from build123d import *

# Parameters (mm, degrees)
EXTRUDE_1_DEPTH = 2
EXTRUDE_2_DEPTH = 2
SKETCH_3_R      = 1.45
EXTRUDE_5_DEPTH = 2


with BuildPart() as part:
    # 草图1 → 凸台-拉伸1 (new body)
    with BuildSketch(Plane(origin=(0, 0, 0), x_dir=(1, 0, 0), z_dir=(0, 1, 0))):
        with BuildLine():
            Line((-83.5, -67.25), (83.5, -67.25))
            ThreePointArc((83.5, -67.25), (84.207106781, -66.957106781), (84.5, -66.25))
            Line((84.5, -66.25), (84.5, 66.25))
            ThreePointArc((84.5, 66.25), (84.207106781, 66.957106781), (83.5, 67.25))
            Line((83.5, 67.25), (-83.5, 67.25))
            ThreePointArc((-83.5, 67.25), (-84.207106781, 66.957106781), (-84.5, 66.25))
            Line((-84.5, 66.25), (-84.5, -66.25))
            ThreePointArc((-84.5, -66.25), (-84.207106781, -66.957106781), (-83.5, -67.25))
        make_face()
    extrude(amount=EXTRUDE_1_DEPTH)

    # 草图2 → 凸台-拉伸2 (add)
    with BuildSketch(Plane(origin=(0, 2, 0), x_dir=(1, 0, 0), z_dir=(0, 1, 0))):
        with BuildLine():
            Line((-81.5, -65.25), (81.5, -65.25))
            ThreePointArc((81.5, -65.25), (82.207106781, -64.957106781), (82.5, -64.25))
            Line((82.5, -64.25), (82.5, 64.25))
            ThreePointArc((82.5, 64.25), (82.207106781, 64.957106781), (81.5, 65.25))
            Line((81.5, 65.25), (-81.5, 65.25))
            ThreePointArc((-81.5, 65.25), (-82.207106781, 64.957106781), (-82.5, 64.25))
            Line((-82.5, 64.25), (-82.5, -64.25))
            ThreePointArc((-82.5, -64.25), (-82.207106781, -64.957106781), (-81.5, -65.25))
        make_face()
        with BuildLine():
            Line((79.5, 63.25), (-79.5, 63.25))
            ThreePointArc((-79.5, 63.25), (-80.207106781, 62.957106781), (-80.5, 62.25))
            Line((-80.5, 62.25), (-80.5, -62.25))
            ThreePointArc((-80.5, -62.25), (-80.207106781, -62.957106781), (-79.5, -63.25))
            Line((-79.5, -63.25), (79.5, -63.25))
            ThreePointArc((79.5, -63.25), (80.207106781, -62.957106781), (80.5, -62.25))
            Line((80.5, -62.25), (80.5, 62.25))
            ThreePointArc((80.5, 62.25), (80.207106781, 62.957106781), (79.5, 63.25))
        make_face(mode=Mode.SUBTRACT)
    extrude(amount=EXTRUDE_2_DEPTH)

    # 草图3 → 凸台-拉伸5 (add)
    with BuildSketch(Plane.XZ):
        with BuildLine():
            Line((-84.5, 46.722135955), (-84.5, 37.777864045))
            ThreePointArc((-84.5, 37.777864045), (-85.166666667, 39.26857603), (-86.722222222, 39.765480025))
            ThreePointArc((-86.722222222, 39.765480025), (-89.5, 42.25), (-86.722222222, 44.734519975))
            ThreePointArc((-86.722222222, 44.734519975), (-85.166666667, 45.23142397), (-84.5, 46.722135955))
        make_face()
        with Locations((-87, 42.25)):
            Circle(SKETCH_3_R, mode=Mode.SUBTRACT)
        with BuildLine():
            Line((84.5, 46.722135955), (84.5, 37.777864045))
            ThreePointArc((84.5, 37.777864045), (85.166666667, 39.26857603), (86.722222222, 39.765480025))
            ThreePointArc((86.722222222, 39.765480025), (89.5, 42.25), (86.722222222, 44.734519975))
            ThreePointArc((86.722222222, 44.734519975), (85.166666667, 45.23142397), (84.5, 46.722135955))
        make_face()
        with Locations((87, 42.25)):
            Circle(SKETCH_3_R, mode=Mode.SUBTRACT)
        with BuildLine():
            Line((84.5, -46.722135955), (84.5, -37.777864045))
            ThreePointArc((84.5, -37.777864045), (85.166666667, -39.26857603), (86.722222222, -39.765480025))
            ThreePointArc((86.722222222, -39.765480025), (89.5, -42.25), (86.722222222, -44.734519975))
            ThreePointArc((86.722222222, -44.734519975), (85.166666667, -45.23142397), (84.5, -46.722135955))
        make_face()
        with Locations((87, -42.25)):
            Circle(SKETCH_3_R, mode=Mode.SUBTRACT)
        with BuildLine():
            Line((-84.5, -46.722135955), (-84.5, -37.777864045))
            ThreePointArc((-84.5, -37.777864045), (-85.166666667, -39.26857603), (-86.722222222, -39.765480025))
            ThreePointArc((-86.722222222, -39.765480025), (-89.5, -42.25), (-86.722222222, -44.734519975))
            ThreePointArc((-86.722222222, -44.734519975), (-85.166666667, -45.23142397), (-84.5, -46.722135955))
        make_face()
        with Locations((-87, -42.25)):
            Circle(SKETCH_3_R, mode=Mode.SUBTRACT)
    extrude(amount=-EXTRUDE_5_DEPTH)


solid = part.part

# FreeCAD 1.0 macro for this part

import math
import FreeCAD as App
import Part
import Sketcher

doc = App.newDocument("Part")
body = doc.addObject("PartDesign::Body", "Body")

# Sketch on XZ plane
sketch1 = doc.addObject("Sketcher::SketchObject", "Sketch")
body.addObject(sketch1)
sketch1.AttachmentSupport = (doc.XZ_Plane, [""])
sketch1.MapMode = "FlatFace"
sketch1.addGeometry(Part.LineSegment(App.Vector(-83.5, 67.25, 0), App.Vector(83.5, 67.25, 0)), False)
sketch1.addGeometry(Part.ArcOfCircle(Part.Circle(App.Vector(83.5, 66.25, 0), App.Vector(0, 0, 1), 1), math.radians(0), math.radians(90)), False)
sketch1.addGeometry(Part.LineSegment(App.Vector(84.5, 66.25, 0), App.Vector(84.5, -66.25, 0)), False)
sketch1.addGeometry(Part.ArcOfCircle(Part.Circle(App.Vector(83.5, -66.25, 0), App.Vector(0, 0, 1), 1), math.radians(-90), math.radians(0)), False)
sketch1.addGeometry(Part.LineSegment(App.Vector(83.5, -67.25, 0), App.Vector(-83.5, -67.25, 0)), False)
sketch1.addGeometry(Part.ArcOfCircle(Part.Circle(App.Vector(-83.5, -66.25, 0), App.Vector(0, 0, 1), 1), math.radians(-180), math.radians(-90)), False)
sketch1.addGeometry(Part.LineSegment(App.Vector(-84.5, -66.25, 0), App.Vector(-84.5, 66.25, 0)), False)
sketch1.addGeometry(Part.ArcOfCircle(Part.Circle(App.Vector(-83.5, 66.25, 0), App.Vector(0, 0, 1), 1), math.radians(90), math.radians(180)), False)
sketch1.addConstraint(Sketcher.Constraint("Tangent", 0, 2, 1, 2))
sketch1.addConstraint(Sketcher.Constraint("Tangent", 1, 1, 2, 1))
sketch1.addConstraint(Sketcher.Constraint("Tangent", 2, 2, 3, 2))
sketch1.addConstraint(Sketcher.Constraint("Tangent", 3, 1, 4, 1))
sketch1.addConstraint(Sketcher.Constraint("Tangent", 4, 2, 5, 2))
sketch1.addConstraint(Sketcher.Constraint("Tangent", 5, 1, 6, 1))
sketch1.addConstraint(Sketcher.Constraint("Tangent", 6, 2, 7, 2))
sketch1.addConstraint(Sketcher.Constraint("Tangent", 7, 1, 0, 1))
sketch1.addConstraint(Sketcher.Constraint("Horizontal", 0))
sketch1.addConstraint(Sketcher.Constraint("Vertical", 2))
sketch1.addConstraint(Sketcher.Constraint("Horizontal", 4))
sketch1.addConstraint(Sketcher.Constraint("Vertical", 6))
sketch1.addConstraint(Sketcher.Constraint("Equal", 1, 3))
sketch1.addConstraint(Sketcher.Constraint("Equal", 3, 5))
sketch1.addConstraint(Sketcher.Constraint("Equal", 5, 7))
sketch1.addConstraint(Sketcher.Constraint("Symmetric", 1, 3, 5, 3, -1, 1))
sketch1.addConstraint(Sketcher.Constraint("Radius", 1, 1.0))
sketch1.addConstraint(Sketcher.Constraint("DistanceX", 0, 1, 0, 2, 167.0))
sketch1.addConstraint(Sketcher.Constraint("DistanceY", 2, 2, 2, 1, 132.5))
pad1 = doc.addObject("PartDesign::Pad", "Pad")
body.addObject(pad1)
pad1.Profile = sketch1
pad1.Length = 2
pad1.Reversed = True

# Sketch on XZ plane
sketch2 = doc.addObject("Sketcher::SketchObject", "Sketch001")
body.addObject(sketch2)
sketch2.AttachmentSupport = (doc.XZ_Plane, [""])
sketch2.MapMode = "FlatFace"
sketch2.AttachmentOffset = App.Placement(App.Vector(0, 0, -2), App.Rotation())
sketch2.addGeometry(Part.LineSegment(App.Vector(-81.5, 65.25, 0), App.Vector(81.5, 65.25, 0)), False)
sketch2.addGeometry(Part.ArcOfCircle(Part.Circle(App.Vector(81.5, 64.25, 0), App.Vector(0, 0, 1), 1), math.radians(0), math.radians(90)), False)
sketch2.addGeometry(Part.LineSegment(App.Vector(82.5, 64.25, 0), App.Vector(82.5, -64.25, 0)), False)
sketch2.addGeometry(Part.ArcOfCircle(Part.Circle(App.Vector(81.5, -64.25, 0), App.Vector(0, 0, 1), 1), math.radians(-90), math.radians(0)), False)
sketch2.addGeometry(Part.LineSegment(App.Vector(81.5, -65.25, 0), App.Vector(-81.5, -65.25, 0)), False)
sketch2.addGeometry(Part.ArcOfCircle(Part.Circle(App.Vector(-81.5, -64.25, 0), App.Vector(0, 0, 1), 1), math.radians(-180), math.radians(-90)), False)
sketch2.addGeometry(Part.LineSegment(App.Vector(-82.5, -64.25, 0), App.Vector(-82.5, 64.25, 0)), False)
sketch2.addGeometry(Part.ArcOfCircle(Part.Circle(App.Vector(-81.5, 64.25, 0), App.Vector(0, 0, 1), 1), math.radians(90), math.radians(180)), False)
sketch2.addGeometry(Part.LineSegment(App.Vector(-79.5, -63.25, 0), App.Vector(79.5, -63.25, 0)), False)
sketch2.addGeometry(Part.ArcOfCircle(Part.Circle(App.Vector(79.5, -62.25, 0), App.Vector(0, 0, 1), 1), math.radians(-90), math.radians(0)), False)
sketch2.addGeometry(Part.LineSegment(App.Vector(80.5, -62.25, 0), App.Vector(80.5, 62.25, 0)), False)
sketch2.addGeometry(Part.ArcOfCircle(Part.Circle(App.Vector(79.5, 62.25, 0), App.Vector(0, 0, 1), 1), math.radians(0), math.radians(90)), False)
sketch2.addGeometry(Part.LineSegment(App.Vector(79.5, 63.25, 0), App.Vector(-79.5, 63.25, 0)), False)
sketch2.addGeometry(Part.ArcOfCircle(Part.Circle(App.Vector(-79.5, 62.25, 0), App.Vector(0, 0, 1), 1), math.radians(90), math.radians(180)), False)
sketch2.addGeometry(Part.LineSegment(App.Vector(-80.5, 62.25, 0), App.Vector(-80.5, -62.25, 0)), False)
sketch2.addGeometry(Part.ArcOfCircle(Part.Circle(App.Vector(-79.5, -62.25, 0), App.Vector(0, 0, 1), 1), math.radians(-180), math.radians(-90)), False)
sketch2.addConstraint(Sketcher.Constraint("Tangent", 0, 2, 1, 2))
sketch2.addConstraint(Sketcher.Constraint("Tangent", 1, 1, 2, 1))
sketch2.addConstraint(Sketcher.Constraint("Tangent", 2, 2, 3, 2))
sketch2.addConstraint(Sketcher.Constraint("Tangent", 3, 1, 4, 1))
sketch2.addConstraint(Sketcher.Constraint("Tangent", 4, 2, 5, 2))
sketch2.addConstraint(Sketcher.Constraint("Tangent", 5, 1, 6, 1))
sketch2.addConstraint(Sketcher.Constraint("Tangent", 6, 2, 7, 2))
sketch2.addConstraint(Sketcher.Constraint("Tangent", 7, 1, 0, 1))
sketch2.addConstraint(Sketcher.Constraint("Tangent", 8, 2, 9, 1))
sketch2.addConstraint(Sketcher.Constraint("Tangent", 9, 2, 10, 1))
sketch2.addConstraint(Sketcher.Constraint("Tangent", 10, 2, 11, 1))
sketch2.addConstraint(Sketcher.Constraint("Tangent", 11, 2, 12, 1))
sketch2.addConstraint(Sketcher.Constraint("Tangent", 12, 2, 13, 1))
sketch2.addConstraint(Sketcher.Constraint("Tangent", 13, 2, 14, 1))
sketch2.addConstraint(Sketcher.Constraint("Tangent", 14, 2, 15, 1))
sketch2.addConstraint(Sketcher.Constraint("Tangent", 15, 2, 8, 1))
sketch2.addConstraint(Sketcher.Constraint("Horizontal", 0))
sketch2.addConstraint(Sketcher.Constraint("Vertical", 2))
sketch2.addConstraint(Sketcher.Constraint("Horizontal", 4))
sketch2.addConstraint(Sketcher.Constraint("Vertical", 6))
sketch2.addConstraint(Sketcher.Constraint("Horizontal", 8))
sketch2.addConstraint(Sketcher.Constraint("Vertical", 10))
sketch2.addConstraint(Sketcher.Constraint("Horizontal", 12))
sketch2.addConstraint(Sketcher.Constraint("Vertical", 14))
sketch2.addConstraint(Sketcher.Constraint("Equal", 1, 3))
sketch2.addConstraint(Sketcher.Constraint("Equal", 3, 5))
sketch2.addConstraint(Sketcher.Constraint("Equal", 5, 7))
sketch2.addConstraint(Sketcher.Constraint("Equal", 7, 9))
sketch2.addConstraint(Sketcher.Constraint("Equal", 9, 11))
sketch2.addConstraint(Sketcher.Constraint("Equal", 11, 13))
sketch2.addConstraint(Sketcher.Constraint("Equal", 13, 15))
sketch2.addConstraint(Sketcher.Constraint("Symmetric", 1, 3, 5, 3, -1, 1))
sketch2.addConstraint(Sketcher.Constraint("Symmetric", 9, 3, 13, 3, -1, 1))
sketch2.addConstraint(Sketcher.Constraint("Radius", 1, 1.0))
sketch2.addConstraint(Sketcher.Constraint("DistanceX", 0, 1, 0, 2, 163.0))
sketch2.addConstraint(Sketcher.Constraint("DistanceX", 8, 1, 8, 2, 159.0))
sketch2.addConstraint(Sketcher.Constraint("DistanceY", 2, 2, 2, 1, 128.5))
sketch2.addConstraint(Sketcher.Constraint("DistanceY", 10, 1, 10, 2, 124.5))
pad2 = doc.addObject("PartDesign::Pad", "Pad001")
body.addObject(pad2)
pad2.Profile = sketch2
pad2.Length = 2
pad2.Reversed = True

# Sketch on XZ plane
sketch3 = doc.addObject("Sketcher::SketchObject", "Sketch002")
body.addObject(sketch3)
sketch3.AttachmentSupport = (doc.XZ_Plane, [""])
sketch3.MapMode = "FlatFace"
sketch3.addGeometry(Part.LineSegment(App.Vector(-84.5, 37.777864, 0), App.Vector(-84.5, 46.722136, 0)), False)
sketch3.addGeometry(Part.ArcOfCircle(Part.Circle(App.Vector(-86.5, 46.722136, 0), App.Vector(0, 0, 1), 2), math.radians(-96.37937), math.radians(0)), False)
sketch3.addGeometry(Part.ArcOfCircle(Part.Circle(App.Vector(-87, 42.25, 0), App.Vector(0, 0, 1), 2.5), math.radians(83.62063), math.radians(276.37937)), False)
sketch3.addGeometry(Part.ArcOfCircle(Part.Circle(App.Vector(-86.5, 37.777864, 0), App.Vector(0, 0, 1), 2), math.radians(0), math.radians(96.37937)), False)
sketch3.addGeometry(Part.Circle(App.Vector(-87, 42.25, 0), App.Vector(0, 0, 1), 1.45), False)
sketch3.addGeometry(Part.LineSegment(App.Vector(84.5, 46.722136, 0), App.Vector(84.5, 37.777864, 0)), False)
sketch3.addGeometry(Part.ArcOfCircle(Part.Circle(App.Vector(86.5, 37.777864, 0), App.Vector(0, 0, 1), 2), math.radians(83.62063), math.radians(180)), False)
sketch3.addGeometry(Part.ArcOfCircle(Part.Circle(App.Vector(87, 42.25, 0), App.Vector(0, 0, 1), 2.5), math.radians(-96.37937), math.radians(96.37937)), False)
sketch3.addGeometry(Part.ArcOfCircle(Part.Circle(App.Vector(86.5, 46.722136, 0), App.Vector(0, 0, 1), 2), math.radians(180), math.radians(276.37937)), False)
sketch3.addGeometry(Part.Circle(App.Vector(87, 42.25, 0), App.Vector(0, 0, 1), 1.45), False)
sketch3.addGeometry(Part.LineSegment(App.Vector(84.5, -37.777864, 0), App.Vector(84.5, -46.722136, 0)), False)
sketch3.addGeometry(Part.ArcOfCircle(Part.Circle(App.Vector(86.5, -46.722136, 0), App.Vector(0, 0, 1), 2), math.radians(83.62063), math.radians(180)), False)
sketch3.addGeometry(Part.ArcOfCircle(Part.Circle(App.Vector(87, -42.25, 0), App.Vector(0, 0, 1), 2.5), math.radians(-96.37937), math.radians(96.37937)), False)
sketch3.addGeometry(Part.ArcOfCircle(Part.Circle(App.Vector(86.5, -37.777864, 0), App.Vector(0, 0, 1), 2), math.radians(180), math.radians(276.37937)), False)
sketch3.addGeometry(Part.Circle(App.Vector(87, -42.25, 0), App.Vector(0, 0, 1), 1.45), False)
sketch3.addGeometry(Part.LineSegment(App.Vector(-84.5, -46.722136, 0), App.Vector(-84.5, -37.777864, 0)), False)
sketch3.addGeometry(Part.ArcOfCircle(Part.Circle(App.Vector(-86.5, -37.777864, 0), App.Vector(0, 0, 1), 2), math.radians(-96.37937), math.radians(0)), False)
sketch3.addGeometry(Part.ArcOfCircle(Part.Circle(App.Vector(-87, -42.25, 0), App.Vector(0, 0, 1), 2.5), math.radians(83.62063), math.radians(276.37937)), False)
sketch3.addGeometry(Part.ArcOfCircle(Part.Circle(App.Vector(-86.5, -46.722136, 0), App.Vector(0, 0, 1), 2), math.radians(0), math.radians(96.37937)), False)
sketch3.addGeometry(Part.Circle(App.Vector(-87, -42.25, 0), App.Vector(0, 0, 1), 1.45), False)
sketch3.addConstraint(Sketcher.Constraint("Tangent", 0, 2, 1, 2))
sketch3.addConstraint(Sketcher.Constraint("Tangent", 1, 1, 2, 1))
sketch3.addConstraint(Sketcher.Constraint("Tangent", 2, 2, 3, 2))
sketch3.addConstraint(Sketcher.Constraint("Tangent", 3, 1, 0, 1))
sketch3.addConstraint(Sketcher.Constraint("Tangent", 5, 2, 6, 2))
sketch3.addConstraint(Sketcher.Constraint("Tangent", 6, 1, 7, 1))
sketch3.addConstraint(Sketcher.Constraint("Tangent", 7, 2, 8, 2))
sketch3.addConstraint(Sketcher.Constraint("Tangent", 8, 1, 5, 1))
sketch3.addConstraint(Sketcher.Constraint("Tangent", 10, 2, 11, 2))
sketch3.addConstraint(Sketcher.Constraint("Tangent", 11, 1, 12, 1))
sketch3.addConstraint(Sketcher.Constraint("Tangent", 12, 2, 13, 2))
sketch3.addConstraint(Sketcher.Constraint("Tangent", 13, 1, 10, 1))
sketch3.addConstraint(Sketcher.Constraint("Tangent", 15, 2, 16, 2))
sketch3.addConstraint(Sketcher.Constraint("Tangent", 16, 1, 17, 1))
sketch3.addConstraint(Sketcher.Constraint("Tangent", 17, 2, 18, 2))
sketch3.addConstraint(Sketcher.Constraint("Tangent", 18, 1, 15, 1))
sketch3.addConstraint(Sketcher.Constraint("Vertical", 0))
sketch3.addConstraint(Sketcher.Constraint("Vertical", 5))
sketch3.addConstraint(Sketcher.Constraint("Vertical", 10))
sketch3.addConstraint(Sketcher.Constraint("Vertical", 15))
sketch3.addConstraint(Sketcher.Constraint("Coincident", 4, 3, 2, 3))
sketch3.addConstraint(Sketcher.Constraint("Coincident", 9, 3, 7, 3))
sketch3.addConstraint(Sketcher.Constraint("Coincident", 14, 3, 12, 3))
sketch3.addConstraint(Sketcher.Constraint("Coincident", 19, 3, 17, 3))
sketch3.addConstraint(Sketcher.Constraint("Equal", 1, 3))
sketch3.addConstraint(Sketcher.Constraint("Equal", 3, 6))
sketch3.addConstraint(Sketcher.Constraint("Equal", 2, 7))
sketch3.addConstraint(Sketcher.Constraint("Equal", 6, 8))
sketch3.addConstraint(Sketcher.Constraint("Equal", 4, 9))
sketch3.addConstraint(Sketcher.Constraint("Equal", 8, 11))
sketch3.addConstraint(Sketcher.Constraint("Equal", 7, 12))
sketch3.addConstraint(Sketcher.Constraint("Equal", 11, 13))
sketch3.addConstraint(Sketcher.Constraint("Equal", 9, 14))
sketch3.addConstraint(Sketcher.Constraint("Equal", 13, 16))
sketch3.addConstraint(Sketcher.Constraint("Equal", 12, 17))
sketch3.addConstraint(Sketcher.Constraint("Equal", 16, 18))
sketch3.addConstraint(Sketcher.Constraint("Equal", 14, 19))
sketch3.addConstraint(Sketcher.Constraint("Symmetric", 1, 3, 11, 3, -1, 1))
sketch3.addConstraint(Sketcher.Constraint("Symmetric", 6, 3, 16, 3, -1, 1))
sketch3.addConstraint(Sketcher.Constraint("Symmetric", 3, 3, 6, 3, -2))
sketch3.addConstraint(Sketcher.Constraint("Symmetric", 12, 3, 17, 3, -2))
sketch3.addConstraint(Sketcher.Constraint("Horizontal", 4, 3, 7, 3))
sketch3.addConstraint(Sketcher.Constraint("Radius", 1, 2.0))
sketch3.addConstraint(Sketcher.Constraint("Diameter", 4, 2.9))
sketch3.addConstraint(Sketcher.Constraint("Radius", 2, 2.5))
sketch3.addConstraint(Sketcher.Constraint("DistanceX", 2, 3, -1, 1, 87.0))
sketch3.addConstraint(Sketcher.Constraint("DistanceX", 3, 3, 6, 3, 173.0))
sketch3.addConstraint(Sketcher.Constraint("DistanceY", 11, 3, 6, 3, 84.5))
pad3 = doc.addObject("PartDesign::Pad", "Pad002")
body.addObject(pad3)
pad3.Profile = sketch3
pad3.Length = 2
pad3.Reversed = True

doc.recompute()
